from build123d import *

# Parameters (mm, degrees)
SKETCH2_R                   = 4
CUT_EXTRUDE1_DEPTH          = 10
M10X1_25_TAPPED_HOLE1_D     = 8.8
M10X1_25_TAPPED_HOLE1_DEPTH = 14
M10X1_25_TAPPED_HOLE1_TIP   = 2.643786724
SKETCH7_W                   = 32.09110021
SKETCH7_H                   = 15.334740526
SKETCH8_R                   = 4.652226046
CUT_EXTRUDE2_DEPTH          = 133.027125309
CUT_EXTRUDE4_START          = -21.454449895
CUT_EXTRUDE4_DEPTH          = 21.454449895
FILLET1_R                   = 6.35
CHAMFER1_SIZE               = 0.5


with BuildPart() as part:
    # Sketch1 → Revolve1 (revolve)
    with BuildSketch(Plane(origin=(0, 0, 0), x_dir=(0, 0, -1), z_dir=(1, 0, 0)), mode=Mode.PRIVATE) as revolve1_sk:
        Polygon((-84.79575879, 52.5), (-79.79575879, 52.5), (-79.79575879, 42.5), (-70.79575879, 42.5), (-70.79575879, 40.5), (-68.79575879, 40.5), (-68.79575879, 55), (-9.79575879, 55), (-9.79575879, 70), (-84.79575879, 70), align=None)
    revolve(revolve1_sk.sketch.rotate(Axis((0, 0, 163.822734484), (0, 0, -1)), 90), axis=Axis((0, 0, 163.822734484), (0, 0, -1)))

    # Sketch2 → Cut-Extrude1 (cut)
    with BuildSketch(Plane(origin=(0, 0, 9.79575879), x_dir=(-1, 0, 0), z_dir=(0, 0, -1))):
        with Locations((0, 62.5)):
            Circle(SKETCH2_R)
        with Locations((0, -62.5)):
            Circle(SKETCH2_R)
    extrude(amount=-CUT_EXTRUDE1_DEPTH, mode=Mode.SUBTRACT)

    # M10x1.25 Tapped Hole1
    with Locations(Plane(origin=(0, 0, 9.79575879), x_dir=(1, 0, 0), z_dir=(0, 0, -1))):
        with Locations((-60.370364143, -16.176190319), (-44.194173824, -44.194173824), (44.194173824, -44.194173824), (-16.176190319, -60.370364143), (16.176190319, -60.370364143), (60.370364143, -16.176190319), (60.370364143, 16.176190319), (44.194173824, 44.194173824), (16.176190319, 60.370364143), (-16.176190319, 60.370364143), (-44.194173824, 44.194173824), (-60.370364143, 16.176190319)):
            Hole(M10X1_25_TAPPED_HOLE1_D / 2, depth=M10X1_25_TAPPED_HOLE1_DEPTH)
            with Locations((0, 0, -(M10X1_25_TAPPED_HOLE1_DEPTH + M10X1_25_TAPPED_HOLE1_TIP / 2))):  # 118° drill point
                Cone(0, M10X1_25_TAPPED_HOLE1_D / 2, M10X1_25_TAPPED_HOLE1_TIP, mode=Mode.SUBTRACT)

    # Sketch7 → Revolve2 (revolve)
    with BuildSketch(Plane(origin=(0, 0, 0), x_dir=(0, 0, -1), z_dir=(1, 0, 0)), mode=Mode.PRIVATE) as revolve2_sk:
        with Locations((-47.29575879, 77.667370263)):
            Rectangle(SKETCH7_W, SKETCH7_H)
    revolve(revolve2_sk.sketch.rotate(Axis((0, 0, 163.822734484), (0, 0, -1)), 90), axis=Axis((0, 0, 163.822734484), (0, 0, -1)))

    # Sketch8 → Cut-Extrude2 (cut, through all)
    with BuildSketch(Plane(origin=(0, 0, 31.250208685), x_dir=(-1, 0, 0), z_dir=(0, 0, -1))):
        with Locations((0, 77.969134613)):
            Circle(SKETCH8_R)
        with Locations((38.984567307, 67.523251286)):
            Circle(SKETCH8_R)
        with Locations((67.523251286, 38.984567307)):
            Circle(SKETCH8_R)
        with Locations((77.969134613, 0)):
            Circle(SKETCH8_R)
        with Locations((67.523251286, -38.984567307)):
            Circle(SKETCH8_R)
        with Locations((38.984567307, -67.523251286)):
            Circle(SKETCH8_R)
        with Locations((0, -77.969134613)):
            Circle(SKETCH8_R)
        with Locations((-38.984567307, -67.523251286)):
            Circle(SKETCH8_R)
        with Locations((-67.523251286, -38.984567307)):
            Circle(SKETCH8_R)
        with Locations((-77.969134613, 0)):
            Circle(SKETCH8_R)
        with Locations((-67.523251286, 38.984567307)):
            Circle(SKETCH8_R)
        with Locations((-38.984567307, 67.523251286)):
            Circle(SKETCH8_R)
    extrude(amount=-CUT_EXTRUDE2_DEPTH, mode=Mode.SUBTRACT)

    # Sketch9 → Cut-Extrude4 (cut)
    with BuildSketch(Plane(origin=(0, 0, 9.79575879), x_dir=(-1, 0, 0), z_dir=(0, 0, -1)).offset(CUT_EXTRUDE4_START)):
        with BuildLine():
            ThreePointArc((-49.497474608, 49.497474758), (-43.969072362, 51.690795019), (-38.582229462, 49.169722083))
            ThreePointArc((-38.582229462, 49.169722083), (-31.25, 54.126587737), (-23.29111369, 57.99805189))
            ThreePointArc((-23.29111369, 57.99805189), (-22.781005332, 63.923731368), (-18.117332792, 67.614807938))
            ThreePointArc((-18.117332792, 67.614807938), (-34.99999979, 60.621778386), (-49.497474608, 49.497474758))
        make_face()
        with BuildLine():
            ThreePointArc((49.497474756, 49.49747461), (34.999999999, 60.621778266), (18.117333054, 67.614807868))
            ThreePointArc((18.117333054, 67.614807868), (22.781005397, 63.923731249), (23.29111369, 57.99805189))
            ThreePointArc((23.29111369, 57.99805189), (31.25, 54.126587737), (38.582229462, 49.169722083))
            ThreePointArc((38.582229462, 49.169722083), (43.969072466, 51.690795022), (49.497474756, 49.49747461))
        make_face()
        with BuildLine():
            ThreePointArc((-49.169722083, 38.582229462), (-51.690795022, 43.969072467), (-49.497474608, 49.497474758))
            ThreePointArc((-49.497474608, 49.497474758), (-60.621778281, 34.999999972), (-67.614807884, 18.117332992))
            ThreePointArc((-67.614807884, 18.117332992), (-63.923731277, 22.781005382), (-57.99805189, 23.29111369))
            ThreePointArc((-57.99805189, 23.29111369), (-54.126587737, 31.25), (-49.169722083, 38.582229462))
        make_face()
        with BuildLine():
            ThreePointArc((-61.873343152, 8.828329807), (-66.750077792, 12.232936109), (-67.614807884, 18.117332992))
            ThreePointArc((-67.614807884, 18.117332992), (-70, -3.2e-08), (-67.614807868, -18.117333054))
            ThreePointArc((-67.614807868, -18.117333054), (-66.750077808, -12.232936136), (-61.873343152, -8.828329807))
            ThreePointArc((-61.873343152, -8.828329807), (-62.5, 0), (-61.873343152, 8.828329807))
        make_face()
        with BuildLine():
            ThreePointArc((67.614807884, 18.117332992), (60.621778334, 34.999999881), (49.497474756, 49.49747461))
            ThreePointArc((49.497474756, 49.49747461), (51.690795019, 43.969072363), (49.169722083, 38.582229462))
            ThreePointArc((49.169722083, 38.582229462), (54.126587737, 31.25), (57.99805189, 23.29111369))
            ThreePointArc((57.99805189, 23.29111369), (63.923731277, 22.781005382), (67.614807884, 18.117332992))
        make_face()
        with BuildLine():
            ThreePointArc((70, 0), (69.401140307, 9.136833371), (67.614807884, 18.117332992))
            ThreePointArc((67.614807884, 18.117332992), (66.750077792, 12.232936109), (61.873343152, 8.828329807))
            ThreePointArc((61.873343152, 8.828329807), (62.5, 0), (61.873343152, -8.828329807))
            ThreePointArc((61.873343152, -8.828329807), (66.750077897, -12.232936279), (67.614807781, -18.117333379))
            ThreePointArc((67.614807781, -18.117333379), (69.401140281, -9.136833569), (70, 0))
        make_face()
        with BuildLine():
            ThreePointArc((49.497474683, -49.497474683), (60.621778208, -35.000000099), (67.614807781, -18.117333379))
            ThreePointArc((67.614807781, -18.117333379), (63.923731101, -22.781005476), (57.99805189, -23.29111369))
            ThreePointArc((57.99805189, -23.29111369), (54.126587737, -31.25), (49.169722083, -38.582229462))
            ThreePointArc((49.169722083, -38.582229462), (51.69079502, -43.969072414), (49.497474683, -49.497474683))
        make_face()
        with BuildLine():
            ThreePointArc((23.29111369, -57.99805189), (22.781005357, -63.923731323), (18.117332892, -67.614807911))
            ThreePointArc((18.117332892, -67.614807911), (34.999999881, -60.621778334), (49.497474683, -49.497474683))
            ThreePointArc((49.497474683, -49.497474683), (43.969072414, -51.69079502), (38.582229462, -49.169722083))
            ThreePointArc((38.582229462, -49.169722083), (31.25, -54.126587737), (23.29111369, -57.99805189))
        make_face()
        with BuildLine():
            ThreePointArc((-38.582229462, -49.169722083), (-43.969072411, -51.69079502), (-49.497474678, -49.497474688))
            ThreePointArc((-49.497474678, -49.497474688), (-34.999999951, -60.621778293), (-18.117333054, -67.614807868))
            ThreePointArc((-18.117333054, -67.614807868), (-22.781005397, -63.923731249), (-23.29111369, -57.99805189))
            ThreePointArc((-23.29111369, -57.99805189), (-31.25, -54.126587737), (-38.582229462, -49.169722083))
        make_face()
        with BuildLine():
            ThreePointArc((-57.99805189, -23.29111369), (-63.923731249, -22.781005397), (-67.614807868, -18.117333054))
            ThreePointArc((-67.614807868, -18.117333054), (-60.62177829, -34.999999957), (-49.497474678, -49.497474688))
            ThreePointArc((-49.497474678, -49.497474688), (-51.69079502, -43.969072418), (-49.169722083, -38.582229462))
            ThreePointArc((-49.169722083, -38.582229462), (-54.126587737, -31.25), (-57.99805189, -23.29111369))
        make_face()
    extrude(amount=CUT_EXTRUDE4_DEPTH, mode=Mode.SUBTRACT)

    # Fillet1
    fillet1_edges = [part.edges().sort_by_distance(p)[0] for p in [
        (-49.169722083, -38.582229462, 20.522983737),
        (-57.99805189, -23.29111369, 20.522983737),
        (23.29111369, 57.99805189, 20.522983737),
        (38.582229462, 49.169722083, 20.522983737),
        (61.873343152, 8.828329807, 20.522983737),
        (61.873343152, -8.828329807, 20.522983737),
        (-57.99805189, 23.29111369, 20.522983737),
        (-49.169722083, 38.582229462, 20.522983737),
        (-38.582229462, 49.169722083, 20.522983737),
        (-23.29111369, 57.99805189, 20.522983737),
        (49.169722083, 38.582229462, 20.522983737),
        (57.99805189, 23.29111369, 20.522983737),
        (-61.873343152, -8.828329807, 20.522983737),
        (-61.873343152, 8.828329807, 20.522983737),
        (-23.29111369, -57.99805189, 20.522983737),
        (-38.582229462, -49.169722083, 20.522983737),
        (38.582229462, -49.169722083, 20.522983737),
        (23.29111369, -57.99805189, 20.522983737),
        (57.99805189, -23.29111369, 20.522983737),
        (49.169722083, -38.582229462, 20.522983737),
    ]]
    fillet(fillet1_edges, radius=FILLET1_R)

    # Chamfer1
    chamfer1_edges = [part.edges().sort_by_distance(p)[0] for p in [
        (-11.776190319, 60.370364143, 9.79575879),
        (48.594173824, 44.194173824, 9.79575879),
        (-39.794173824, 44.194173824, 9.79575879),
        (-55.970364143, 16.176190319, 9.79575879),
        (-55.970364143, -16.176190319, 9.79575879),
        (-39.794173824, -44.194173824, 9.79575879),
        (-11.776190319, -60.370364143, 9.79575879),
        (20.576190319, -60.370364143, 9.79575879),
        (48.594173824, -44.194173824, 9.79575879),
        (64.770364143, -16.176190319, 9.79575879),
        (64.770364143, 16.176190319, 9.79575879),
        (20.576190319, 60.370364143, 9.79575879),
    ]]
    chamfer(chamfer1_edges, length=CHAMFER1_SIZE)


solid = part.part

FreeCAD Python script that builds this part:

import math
import FreeCAD as App
import Part
import Sketcher

V = App.Vector


def edges_at(feature, points):
    """Names of the edges that pass closest to the given points."""
    edges = feature.Shape.Edges
    near = lambda p: min(range(len(edges)), key=lambda i: edges[i].distToShape(Part.Vertex(*p))[0])
    return sorted({f"Edge{near(p) + 1}" for p in points})


def add_polygon(sketch, points):
    """Adds a closed chain of lines whose ends are joined by coincident constraints."""
    first, n = sketch.GeometryCount, len(points)
    for a, b in zip(points, points[1:] + points[:1]):
        sketch.addGeometry(Part.LineSegment(App.Vector(*a, 0), App.Vector(*b, 0)), False)
    for i in range(n):
        sketch.addConstraint(Sketcher.Constraint("Coincident", first + i, 2, first + (i + 1) % n, 1))

doc = App.newDocument("Part")
body = doc.addObject("PartDesign::Body", "Body")

sketch1 = body.newObject("Sketcher::SketchObject", "Sketch")
sketch1.AttachmentSupport = (doc.getObject("YZ_Plane"), [""])
sketch1.MapMode = "FlatFace"
add_polygon(sketch1, [(52.5, 84.8), (52.5, 79.8), (42.5, 79.8), (42.5, 70.8), (40.5, 70.8), (40.5, 68.8), (55, 68.8), (55, 9.8), (70, 9.8), (70, 84.8)])
sketch1.addConstraint([
    Sketcher.Constraint("Vertical", 0),
    Sketcher.Constraint("Horizontal", 1),
    Sketcher.Constraint("Vertical", 2),
    Sketcher.Constraint("Horizontal", 3),
    Sketcher.Constraint("Vertical", 4),
    Sketcher.Constraint("Horizontal", 5),
    Sketcher.Constraint("Vertical", 6),
    Sketcher.Constraint("Horizontal", 7),
    Sketcher.Constraint("Vertical", 8),
    Sketcher.Constraint("Horizontal", 9),
    Sketcher.Constraint("Equal", 3, 4),
    Sketcher.Constraint("DistanceX", 1, 2, 1, 1, 10.0),
    Sketcher.Constraint("DistanceX", 3, 2, 3, 1, 2.0),
    Sketcher.Constraint("DistanceX", 7, 1, 7, 2, 15.0),
    Sketcher.Constraint("DistanceY", 0, 2, 0, 1, 5.0),
    Sketcher.Constraint("DistanceY", 2, 2, 2, 1, 9.0),
    Sketcher.Constraint("DistanceY", 6, 2, 6, 1, 59.0),
    Sketcher.Constraint("DistanceX", 5, 1, 5, 2, 14.5),
    Sketcher.Constraint("DistanceX", -1, 1, 5, 2, 55.0),
    Sketcher.Constraint("DistanceY", -1, 1, 0, 2, 79.795759),
])
revolution = body.newObject("PartDesign::Revolution", "Revolution")
revolution.Profile = sketch1
revolution.ReferenceAxis = (sketch1, ["V_Axis"])
revolution.Angle = 360

sketch2 = body.newObject("Sketcher::SketchObject", "Sketch001")
sketch2.AttachmentSupport = (doc.getObject("XY_Plane"), [""])
sketch2.MapMode = "FlatFace"
sketch2.AttachmentOffset = App.Placement(V(0, 0, 9.795759), App.Rotation())
sketch2.addGeometry([
    Part.Circle(V(0, 62.5, 0), V(0, 0, 1), 4),
    Part.Circle(V(0, -62.5, 0), V(0, 0, 1), 4),
], False)
sketch2.addConstraint([
    Sketcher.Constraint("Equal", 0, 1),
    Sketcher.Constraint("Symmetric", 0, 3, 1, 3, -1, 1),
    Sketcher.Constraint("PointOnObject", 0, 3, -2),
    Sketcher.Constraint("Diameter", 0, 8.0),
    Sketcher.Constraint("DistanceY", 1, 3, 0, 3, 125.0),
])
pocket1 = body.newObject("PartDesign::Pocket", "Pocket")
pocket1.Profile = sketch2
pocket1.Length = 10
pocket1.Reversed = True

sketch3 = body.newObject("Sketcher::SketchObject", "Sketch002")
sketch3.AttachmentSupport = (doc.getObject("XY_Plane"), [""])
sketch3.MapMode = "FlatFace"
sketch3.AttachmentOffset = App.Placement(V(0, 0, 9.795759), App.Rotation())
sketch3.addGeometry([
    Part.Circle(V(-60.4, 16.2, 0), V(0, 0, 1), 4.4),
    Part.Circle(V(-44.2, 44.2, 0), V(0, 0, 1), 4.4),
    Part.Circle(V(44.2, 44.2, 0), V(0, 0, 1), 4.4),
    Part.Circle(V(-16.2, 60.4, 0), V(0, 0, 1), 4.4),
    Part.Circle(V(16.2, 60.4, 0), V(0, 0, 1), 4.4),
    Part.Circle(V(60.4, 16.2, 0), V(0, 0, 1), 4.4),
    Part.Circle(V(60.4, -16.2, 0), V(0, 0, 1), 4.4),
    Part.Circle(V(44.2, -44.2, 0), V(0, 0, 1), 4.4),
    Part.Circle(V(16.2, -60.4, 0), V(0, 0, 1), 4.4),
    Part.Circle(V(-16.2, -60.4, 0), V(0, 0, 1), 4.4),
    Part.Circle(V(-44.2, -44.2, 0), V(0, 0, 1), 4.4),
    Part.Circle(V(-60.4, -16.2, 0), V(0, 0, 1), 4.4),
], False)
sketch3.addConstraint([
    Sketcher.Constraint("Equal", 0, 1),
    Sketcher.Constraint("Equal", 1, 2),
    Sketcher.Constraint("Equal", 2, 3),
    Sketcher.Constraint("Equal", 3, 4),
    Sketcher.Constraint("Equal", 4, 5),
    Sketcher.Constraint("Equal", 5, 6),
    Sketcher.Constraint("Equal", 6, 7),
    Sketcher.Constraint("Equal", 7, 8),
    Sketcher.Constraint("Equal", 8, 9),
    Sketcher.Constraint("Equal", 9, 10),
    Sketcher.Constraint("Equal", 10, 11),
    Sketcher.Constraint("Symmetric", 0, 3, 6, 3, -1, 1),
    Sketcher.Constraint("Symmetric", 1, 3, 7, 3, -1, 1),
    Sketcher.Constraint("Symmetric", 3, 3, 8, 3, -1, 1),
    Sketcher.Constraint("Symmetric", 4, 3, 9, 3, -1, 1),
    Sketcher.Constraint("Symmetric", 2, 3, 10, 3, -1, 1),
    Sketcher.Constraint("Symmetric", 5, 3, 11, 3, -1, 1),
    Sketcher.Constraint("Symmetric", 1, 3, 2, 3, -2),
    Sketcher.Constraint("Symmetric", 3, 3, 4, 3, -2),
    Sketcher.Constraint("Symmetric", 0, 3, 5, 3, -2),
    Sketcher.Constraint("Diameter", 0, 8.8),
    Sketcher.Constraint("DistanceY", -1, 1, 0, 3, 16.17619),
    Sketcher.Constraint("DistanceX", 3, 3, -1, 1, 16.17619),
    Sketcher.Constraint("DistanceX", 0, 3, 1, 3, 16.17619),
    Sketcher.Constraint("DistanceY", 1, 3, 3, 3, 16.17619),
    Sketcher.Constraint("DistanceX", 0, 3, 5, 3, 120.740728),
    Sketcher.Constraint("DistanceY", -1, 1, 1, 3, 44.194174),
])
doc.recompute()
hole = body.newObject("PartDesign::Hole", "Hole")
hole.Profile = sketch3
hole.ThreadType = "None"
hole.Diameter = 8.8
hole.DepthType = "Dimension"
hole.Depth = 14
hole.DrillPoint = "Angled"
hole.DrillPointAngle = 118
hole.Reversed = True

sketch4 = body.newObject("Sketcher::SketchObject", "Sketch003")
sketch4.AttachmentSupport = (doc.getObject("YZ_Plane"), [""])
sketch4.MapMode = "FlatFace"
add_polygon(sketch4, [(85, 63), (70, 63), (70, 31), (85, 31)])
sketch4.addConstraint([
    Sketcher.Constraint("Horizontal", 0),
    Sketcher.Constraint("Vertical", 1),
    Sketcher.Constraint("Horizontal", 2),
    Sketcher.Constraint("Vertical", 3),
    Sketcher.Constraint("DistanceX", -1, 1, 0, 2, 70.0),
    Sketcher.Constraint("DistanceY", 1, 2, 1, 1, 32.0911),
    Sketcher.Constraint("DistanceX", 0, 2, 0, 1, 15.334741),
    Sketcher.Constraint("DistanceY", -1, 1, 0, 2, 63.341309),
])
revolution2 = body.newObject("PartDesign::Revolution", "Revolution001")
revolution2.Profile = sketch4
revolution2.ReferenceAxis = (sketch4, ["V_Axis"])
revolution2.Angle = 360

sketch5 = body.newObject("Sketcher::SketchObject", "Sketch004")
sketch5.AttachmentSupport = (doc.getObject("XY_Plane"), [""])
sketch5.MapMode = "FlatFace"
sketch5.AttachmentOffset = App.Placement(V(0, 0, 31.250209), App.Rotation())
sketch5.addGeometry([
    Part.Circle(V(0, 78, 0), V(0, 0, 1), 4.7),
    Part.Circle(V(-39, 67.5, 0), V(0, 0, 1), 4.7),
    Part.Circle(V(-67.5, 39, 0), V(0, 0, 1), 4.7),
    Part.Circle(V(-78, 0, 0), V(0, 0, 1), 4.7),
    Part.Circle(V(-67.5, -39, 0), V(0, 0, 1), 4.7),
    Part.Circle(V(-39, -67.5, 0), V(0, 0, 1), 4.7),
    Part.Circle(V(0, -78, 0), V(0, 0, 1), 4.7),
    Part.Circle(V(39, -67.5, 0), V(0, 0, 1), 4.7),
    Part.Circle(V(67.5, -39, 0), V(0, 0, 1), 4.7),
    Part.Circle(V(78, 0, 0), V(0, 0, 1), 4.7),
    Part.Circle(V(67.5, 39, 0), V(0, 0, 1), 4.7),
    Part.Circle(V(39, 67.5, 0), V(0, 0, 1), 4.7),
], False)
sketch5.addConstraint([
    Sketcher.Constraint("Equal", 0, 1),
    Sketcher.Constraint("Equal", 1, 2),
    Sketcher.Constraint("Equal", 2, 3),
    Sketcher.Constraint("Equal", 3, 4),
    Sketcher.Constraint("Equal", 4, 5),
    Sketcher.Constraint("Equal", 5, 6),
    Sketcher.Constraint("Equal", 6, 7),
    Sketcher.Constraint("Equal", 7, 8),
    Sketcher.Constraint("Equal", 8, 9),
    Sketcher.Constraint("Equal", 9, 10),
    Sketcher.Constraint("Equal", 10, 11),
    Sketcher.Constraint("Symmetric", 0, 3, 6, 3, -1, 1),
    Sketcher.Constraint("Symmetric", 1, 3, 7, 3, -1, 1),
    Sketcher.Constraint("Symmetric", 2, 3, 8, 3, -1, 1),
    Sketcher.Constraint("Symmetric", 3, 3, 9, 3, -1, 1),
    Sketcher.Constraint("Symmetric", 4, 3, 10, 3, -1, 1),
    Sketcher.Constraint("Symmetric", 5, 3, 11, 3, -1, 1),
    Sketcher.Constraint("Symmetric", 5, 3, 7, 3, -2),
    Sketcher.Constraint("Symmetric", 4, 3, 8, 3, -2),
    Sketcher.Constraint("PointOnObject", 0, 3, -2),
    Sketcher.Constraint("PointOnObject", 3, 3, -1),
    Sketcher.Constraint("Diameter", 0, 9.304452),
    Sketcher.Constraint("DistanceY", 4, 3, 0, 3, 116.953702),
    Sketcher.Constraint("DistanceX", 3, 3, 7, 3, 116.953702),
    Sketcher.Constraint("DistanceY", -1, 1, 1, 3, 67.523251),
    Sketcher.Constraint("DistanceX", 2, 3, -1, 1, 67.523251),
    Sketcher.Constraint("DistanceY", 4, 3, 1, 3, 106.507819),
    Sketcher.Constraint("DistanceX", 4, 3, 7, 3, 106.507819),
])
pocket2 = body.newObject("PartDesign::Pocket", "Pocket001")
pocket2.Profile = sketch5
pocket2.Type = "ThroughAll"
pocket2.Reversed = True

sketch6 = body.newObject("Sketcher::SketchObject", "Sketch005")
sketch6.AttachmentSupport = (doc.getObject("XY_Plane"), [""])
sketch6.MapMode = "FlatFace"
sketch6.AttachmentOffset = App.Placement(V(0, 0, 31.250209), App.Rotation())
sketch6.addGeometry([
    Part.ArcOfCircle(Part.Circle(V(44, 44, 0), V(0, 0, 1), 7), math.radians(45), math.radians(138)),
    Part.ArcOfCircle(Part.Circle(V(0, 0, 0), V(0, 0, 1), 62), math.radians(51.88), math.radians(68.12)),
    Part.ArcOfCircle(Part.Circle(V(16, 60, 0), V(0, 0, 1), 8), math.radians(-18), math.radians(75)),
    Part.ArcOfCircle(Part.Circle(V(0, 0, 0), V(0, 0, 1), 70), math.radians(45), math.radians(75)),
    Part.ArcOfCircle(Part.Circle(V(0, 0, 0), V(0, 0, 1), 70), math.radians(105), math.radians(135)),
    Part.ArcOfCircle(Part.Circle(V(-16, 60, 0), V(0, 0, 1), 8), math.radians(105), math.radians(198)),
    Part.ArcOfCircle(Part.Circle(V(0, 0, 0), V(0, 0, 1), 62), math.radians(111.88), math.radians(128.12)),
    Part.ArcOfCircle(Part.Circle(V(-44, 44, 0), V(0, 0, 1), 7), math.radians(42), math.radians(135)),
    Part.ArcOfCircle(Part.Circle(V(44, 44, 0), V(0, 0, 1), 7), math.radians(-48), math.radians(45)),
    Part.ArcOfCircle(Part.Circle(V(0, 0, 0), V(0, 0, 1), 70), math.radians(15), math.radians(45)),
    Part.ArcOfCircle(Part.Circle(V(60, 16, 0), V(0, 0, 1), 7), math.radians(15), math.radians(108)),
    Part.ArcOfCircle(Part.Circle(V(0, 0, 0), V(0, 0, 1), 62), math.radians(21.88), math.radians(38.12)),
    Part.ArcOfCircle(Part.Circle(V(60, 16, 0), V(0, 0, 1), 7), math.radians(-78), math.radians(15)),
    Part.ArcOfCircle(Part.Circle(V(0, 0, 0), V(0, 0, 1), 70), math.radians(-15), math.radians(15)),
    Part.ArcOfCircle(Part.Circle(V(60, -16, 0), V(0, 0, 1), 8), math.radians(-15), math.radians(78)),
    Part.ArcOfCircle(Part.Circle(V(0, 0, 0), V(0, 0, 1), 62), math.radians(-8.12), math.radians(8.12)),
    Part.ArcOfCircle(Part.Circle(V(0, 0, 0), V(0, 0, 1), 70), math.radians(135), math.radians(165)),
    Part.ArcOfCircle(Part.Circle(V(-44, 44, 0), V(0, 0, 1), 7), math.radians(135), math.radians(228)),
    Part.ArcOfCircle(Part.Circle(V(0, 0, 0), V(0, 0, 1), 62), math.radians(141.88), math.radians(158.12)),
    Part.ArcOfCircle(Part.Circle(V(-60, 16, 0), V(0, 0, 1), 7), math.radians(72), math.radians(165)),
    Part.ArcOfCircle(Part.Circle(V(0, 0, 0), V(0, 0, 1), 70), math.radians(165), math.radians(180)),
    Part.ArcOfCircle(Part.Circle(V(-60, 16, 0), V(0, 0, 1), 7), math.radians(165), math.radians(258)),
    Part.ArcOfCircle(Part.Circle(V(0, 0, 0), V(0, 0, 1), 62), math.radians(171.88), math.radians(188.12)),
    Part.ArcOfCircle(Part.Circle(V(-60, -16, 0), V(0, 0, 1), 8), math.radians(102), math.radians(195)),
    Part.ArcOfCircle(Part.Circle(V(0, 0, 0), V(0, 0, 1), 70), math.radians(-180), math.radians(-165)),
    Part.ArcOfCircle(Part.Circle(V(0, 0, 0), V(0, 0, 1), 70), math.radians(-165), math.radians(-135)),
    Part.ArcOfCircle(Part.Circle(V(-60, -16, 0), V(0, 0, 1), 8), math.radians(-165), math.radians(-72)),
    Part.ArcOfCircle(Part.Circle(V(0, 0, 0), V(0, 0, 1), 62), math.radians(-158.12), math.radians(-141.88)),
    Part.ArcOfCircle(Part.Circle(V(-44, -44, 0), V(0, 0, 1), 8), math.radians(132), math.radians(225)),
    Part.ArcOfCircle(Part.Circle(V(-16, -60, 0), V(0, 0, 1), 7), math.radians(162), math.radians(255)),
    Part.ArcOfCircle(Part.Circle(V(0, 0, 0), V(0, 0, 1), 70), math.radians(-135), math.radians(-105)),
    Part.ArcOfCircle(Part.Circle(V(-44, -44, 0), V(0, 0, 1), 8), math.radians(-135), math.radians(-42)),
    Part.ArcOfCircle(Part.Circle(V(0, 0, 0), V(0, 0, 1), 62), math.radians(-128.12), math.radians(-111.88)),
    Part.ArcOfCircle(Part.Circle(V(44, -44, 0), V(0, 0, 1), 8), math.radians(-138), math.radians(-45)),
    Part.ArcOfCircle(Part.Circle(V(0, 0, 0), V(0, 0, 1), 70), math.radians(-75), math.radians(-45)),
    Part.ArcOfCircle(Part.Circle(V(16, -60, 0), V(0, 0, 1), 8), math.radians(-75), math.radians(18)),
    Part.ArcOfCircle(Part.Circle(V(0, 0, 0), V(0, 0, 1), 62), math.radians(-68.12), math.radians(-51.88)),
    Part.ArcOfCircle(Part.Circle(V(60, -16, 0), V(0, 0, 1), 8), math.radians(-108), math.radians(-15)),
    Part.ArcOfCircle(Part.Circle(V(0, 0, 0), V(0, 0, 1), 70), math.radians(-45), math.radians(-15)),
    Part.ArcOfCircle(Part.Circle(V(44, -44, 0), V(0, 0, 1), 8), math.radians(-45), math.radians(48)),
    Part.ArcOfCircle(Part.Circle(V(0, 0, 0), V(0, 0, 1), 62), math.radians(-38.12), math.radians(-21.88)),
], False)
sketch6.addConstraint([
    Sketcher.Constraint("Coincident", 0, 2, 1, 1),
    Sketcher.Constraint("Coincident", 1, 2, 2, 1),
    Sketcher.Constraint("Tangent", 2, 2, 3, 2),
    Sketcher.Constraint("Tangent", 3, 1, 0, 1),
    Sketcher.Constraint("Tangent", 4, 1, 5, 1),
    Sketcher.Constraint("Coincident", 5, 2, 6, 1),
    Sketcher.Constraint("Coincident", 6, 2, 7, 1),
    Sketcher.Constraint("Tangent", 7, 2, 4, 2),
    Sketcher.Constraint("Tangent", 8, 2, 9, 2),
    Sketcher.Constraint("Tangent", 9, 1, 10, 1),
    Sketcher.Constraint("Coincident", 10, 2, 11, 1),
    Sketcher.Constraint("Coincident", 11, 2, 8, 1),
    Sketcher.Constraint("Tangent", 12, 2, 13, 2),
    Sketcher.Constraint("Tangent", 13, 1, 14, 1),
    Sketcher.Constraint("Coincident", 14, 2, 15, 1),
    Sketcher.Constraint("Coincident", 15, 2, 12, 1),
    Sketcher.Constraint("Tangent", 16, 1, 17, 1),
    Sketcher.Constraint("Coincident", 17, 2, 18, 1),
    Sketcher.Constraint("Coincident", 18, 2, 19, 1),
    Sketcher.Constraint("Tangent", 19, 2, 16, 2),
    Sketcher.Constraint("Tangent", 20, 1, 21, 1),
    Sketcher.Constraint("Coincident", 21, 2, 22, 1),
    Sketcher.Constraint("Coincident", 22, 2, 23, 1),
    Sketcher.Constraint("Tangent", 23, 2, 24, 2),
    Sketcher.Constraint("Tangent", 24, 1, 20, 2),
    Sketcher.Constraint("Tangent", 25, 1, 26, 1),
    Sketcher.Constraint("Coincident", 26, 2, 27, 1),
    Sketcher.Constraint("Coincident", 27, 2, 28, 1),
    Sketcher.Constraint("Tangent", 28, 2, 25, 2),
    Sketcher.Constraint("Tangent", 29, 2, 30, 2),
    Sketcher.Constraint("Tangent", 30, 1, 31, 1),
    Sketcher.Constraint("Coincident", 31, 2, 32, 1),
    Sketcher.Constraint("Coincident", 32, 2, 29, 1),
    Sketcher.Constraint("Tangent", 33, 2, 34, 2),
    Sketcher.Constraint("Tangent", 34, 1, 35, 1),
    Sketcher.Constraint("Coincident", 35, 2, 36, 1),
    Sketcher.Constraint("Coincident", 36, 2, 33, 1),
    Sketcher.Constraint("Tangent", 37, 2, 38, 2),
    Sketcher.Constraint("Tangent", 38, 1, 39, 1),
    Sketcher.Constraint("Coincident", 39, 2, 40, 1),
    Sketcher.Constraint("Coincident", 40, 2, 37, 1),
    Sketcher.Constraint("Coincident", 1, 3, -1, 1),
    Sketcher.Constraint("Coincident", 3, 3, -1, 1),
    Sketcher.Constraint("Coincident", 4, 3, -1, 1),
    Sketcher.Constraint("Coincident", 6, 3, -1, 1),
    Sketcher.Constraint("Coincident", 9, 3, -1, 1),
    Sketcher.Constraint("Coincident", 11, 3, -1, 1),
    Sketcher.Constraint("Coincident", 13, 3, -1, 1),
    Sketcher.Constraint("Coincident", 15, 3, -1, 1),
    Sketcher.Constraint("Coincident", 16, 3, -1, 1),
    Sketcher.Constraint("Coincident", 18, 3, -1, 1),
    Sketcher.Constraint("Coincident", 20, 3, -1, 1),
    Sketcher.Constraint("Coincident", 22, 3, -1, 1),
    Sketcher.Constraint("Coincident", 25, 3, -1, 1),
    Sketcher.Constraint("Coincident", 27, 3, -1, 1),
    Sketcher.Constraint("Coincident", 30, 3, -1, 1),
    Sketcher.Constraint("Coincident", 32, 3, -1, 1),
    Sketcher.Constraint("Coincident", 34, 3, -1, 1),
    Sketcher.Constraint("Coincident", 36, 3, -1, 1),
    Sketcher.Constraint("Coincident", 38, 3, -1, 1),
    Sketcher.Constraint("Coincident", 40, 3, -1, 1),
    Sketcher.Constraint("Coincident", 8, 3, 0, 3),
    Sketcher.Constraint("Coincident", 12, 3, 10, 3),
    Sketcher.Constraint("Coincident", 17, 3, 7, 3),
    Sketcher.Constraint("Coincident", 21, 3, 19, 3),
    Sketcher.Constraint("Coincident", 26, 3, 23, 3),
    Sketcher.Constraint("Coincident", 31, 3, 28, 3),
    Sketcher.Constraint("Coincident", 37, 3, 14, 3),
    Sketcher.Constraint("Coincident", 39, 3, 33, 3),
    Sketcher.Constraint("Equal", 0, 2),
    Sketcher.Constraint("Equal", 3, 4),
    Sketcher.Constraint("Equal", 2, 5),
    Sketcher.Constraint("Equal", 1, 6),
    Sketcher.Constraint("Equal", 5, 7),
    Sketcher.Constraint("Equal", 7, 8),
    Sketcher.Constraint("Equal", 8, 10),
    Sketcher.Constraint("Equal", 6, 11),
    Sketcher.Constraint("Equal", 10, 12),
    Sketcher.Constraint("Equal", 12, 14),
    Sketcher.Constraint("Equal", 11, 15),
    Sketcher.Constraint("Equal", 13, 16),
    Sketcher.Constraint("Equal", 15, 18),
    Sketcher.Constraint("Equal", 17, 19),
    Sketcher.Constraint("Equal", 16, 20),
    Sketcher.Constraint("Equal", 18, 22),
    Sketcher.Constraint("Equal", 21, 23),
    Sketcher.Constraint("Equal", 20, 24),
    Sketcher.Constraint("Equal", 24, 25),
    Sketcher.Constraint("Equal", 22, 27),
    Sketcher.Constraint("Equal", 26, 28),
    Sketcher.Constraint("Equal", 28, 29),
    Sketcher.Constraint("Equal", 25, 30),
    Sketcher.Constraint("Equal", 27, 32),
    Sketcher.Constraint("Equal", 31, 33),
    Sketcher.Constraint("Equal", 30, 34),
    Sketcher.Constraint("Equal", 33, 35),
    Sketcher.Constraint("Equal", 32, 36),
    Sketcher.Constraint("Equal", 35, 37),
    Sketcher.Constraint("Equal", 36, 40),
    Sketcher.Constraint("PointOnObject", 24, 1, -1),
    Sketcher.Constraint("Horizontal", 2, 3, 5, 3),
    Sketcher.Constraint("Horizontal", 0, 3, 7, 3),
    Sketcher.Constraint("Horizontal", 12, 3, 19, 3),
    Sketcher.Constraint("Horizontal", 14, 3, 23, 3),
    Sketcher.Constraint("Horizontal", 31, 3, 33, 3),
    Sketcher.Constraint("Horizontal", 29, 3, 35, 3),
    Sketcher.Constraint("Vertical", 12, 3, 14, 3),
    Sketcher.Constraint("Vertical", 17, 3, 28, 3),
    Sketcher.Constraint("Vertical", 5, 3, 29, 3),
    Sketcher.Constraint("Radius", 3, 70.0),
    Sketcher.Constraint("Radius", 0, 7.5),
    Sketcher.Constraint("Radius", 1, 62.5),
    Sketcher.Constraint("DistanceX", -1, 1, 2, 3, 16.17619),
    Sketcher.Constraint("DistanceY", -1, 1, 10, 3, 16.17619),
    Sketcher.Constraint("DistanceX", -1, 1, 0, 2, 38.582229),
])
pocket3 = body.newObject("PartDesign::Pocket", "Pocket002")
pocket3.Profile = sketch6
pocket3.Length = 21.45445
doc.recompute()

fillet = body.newObject("PartDesign::Fillet", "Fillet")
fillet.Base = (pocket3, edges_at(pocket3, [
    (-49.17, -38.582, 20.523),
    (-57.998, -23.291, 20.523),
    (23.291, 57.998, 20.523),
    (38.582, 49.17, 20.523),
    (61.873, 8.828, 20.523),
    (61.873, -8.828, 20.523),
    (-57.998, 23.291, 20.523),
    (-49.17, 38.582, 20.523),
    (-38.582, 49.17, 20.523),
    (-23.291, 57.998, 20.523),
    (49.17, 38.582, 20.523),
    (57.998, 23.291, 20.523),
    (-61.873, -8.828, 20.523),
    (-61.873, 8.828, 20.523),
    (-23.291, -57.998, 20.523),
    (-38.582, -49.17, 20.523),
    (38.582, -49.17, 20.523),
    (23.291, -57.998, 20.523),
    (57.998, -23.291, 20.523),
    (49.17, -38.582, 20.523),
]))
fillet.Radius = 6.35
doc.recompute()

chamfer = body.newObject("PartDesign::Chamfer", "Chamfer")
chamfer.Base = (fillet, edges_at(fillet, [
    (-11.776, 60.37, 9.796),
    (48.594, 44.194, 9.796),
    (-39.794, 44.194, 9.796),
    (-55.97, 16.176, 9.796),
    (-55.97, -16.176, 9.796),
    (-39.794, -44.194, 9.796),
    (-11.776, -60.37, 9.796),
    (20.576, -60.37, 9.796),
    (48.594, -44.194, 9.796),
    (64.77, -16.176, 9.796),
    (64.77, 16.176, 9.796),
    (20.576, 60.37, 9.796),
]))
chamfer.Size = 0.5

doc.recompute()
